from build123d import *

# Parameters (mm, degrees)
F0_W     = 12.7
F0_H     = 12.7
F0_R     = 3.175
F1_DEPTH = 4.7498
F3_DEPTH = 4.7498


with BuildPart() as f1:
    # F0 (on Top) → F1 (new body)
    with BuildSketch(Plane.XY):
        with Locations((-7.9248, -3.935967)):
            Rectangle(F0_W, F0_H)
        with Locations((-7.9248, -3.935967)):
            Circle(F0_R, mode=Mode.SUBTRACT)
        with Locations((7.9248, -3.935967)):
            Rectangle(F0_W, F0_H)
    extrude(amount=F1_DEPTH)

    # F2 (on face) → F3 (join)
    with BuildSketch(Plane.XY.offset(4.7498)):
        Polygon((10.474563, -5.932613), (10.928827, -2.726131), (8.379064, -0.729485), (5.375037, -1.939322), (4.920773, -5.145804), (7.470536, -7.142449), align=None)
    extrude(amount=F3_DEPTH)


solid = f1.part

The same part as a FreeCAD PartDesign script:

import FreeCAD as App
import Part
import Sketcher

V = App.Vector
Q = App.Units.Quantity


def add_polygon(sketch, points):
    """Adds a closed chain of lines whose ends are joined by coincident constraints."""
    first, n = sketch.GeometryCount, len(points)
    for a, b in zip(points, points[1:] + points[:1]):
        sketch.addGeometry(Part.LineSegment(App.Vector(*a, 0), App.Vector(*b, 0)), False)
    for i in range(n):
        sketch.addConstraint(Sketcher.Constraint("Coincident", first + i, 2, first + (i + 1) % n, 1))

doc = App.newDocument("Part")
params = doc.addObject("Spreadsheet::Sheet", "Params")
for row, (alias, value) in enumerate([
    ("sketch1_diameter", "0.25 in"),
    ("sketch1_width", "0.5 in"),
    ("pad1_length", "0.187 in"),
    ("pad2_length", "0.187 in"),
], start=1):
    params.set(f"A{row}", alias)
    params.set(f"B{row}", "=" + value)
    params.setAlias(f"B{row}", alias)

body = doc.addObject("PartDesign::Body", "Body")
body.AllowCompound = True

sketch1 = body.newObject("Sketcher::SketchObject", "Sketch")
sketch1.AttachmentSupport = (doc.getObject("XY_Plane"), [""])
sketch1.MapMode = "FlatFace"
add_polygon(sketch1, [(-14.2748, 2.414033), (-14.2748, -10.285967), (-1.5748, -10.285967), (-1.5748, 2.414033)])
sketch1.addGeometry(Part.Circle(V(-7.9248, -3.935967, 0), V(0, 0, 1), 3.175), False)
add_polygon(sketch1, [(1.5748, 2.414033), (1.5748, -10.285967), (14.2748, -10.285967), (14.2748, 2.414033)])
sketch1.addConstraint(Sketcher.Constraint("Vertical", 0))
sketch1.addConstraint(Sketcher.Constraint("Horizontal", 1))
sketch1.addConstraint(Sketcher.Constraint("Vertical", 2))
sketch1.addConstraint(Sketcher.Constraint("Horizontal", 3))
sketch1.addConstraint(Sketcher.Constraint("Vertical", 5))
sketch1.addConstraint(Sketcher.Constraint("Horizontal", 6))
sketch1.addConstraint(Sketcher.Constraint("Vertical", 7))
sketch1.addConstraint(Sketcher.Constraint("Horizontal", 8))
sketch1.addConstraint(Sketcher.Constraint("Symmetric", 1, 2, 5, 2, -2))
sketch1.addConstraint(Sketcher.Constraint("Symmetric", 3, 2, 7, 2, -2))
sketch1.addConstraint(Sketcher.Constraint("Equal", 8, 0))
sketch1.addConstraint(Sketcher.Constraint("Diameter", 4, Q("0.25 in")))
sketch1.addConstraint(Sketcher.Constraint("DistanceX", 1, 1, 1, 2, Q("0.5 in")))
sketch1.addConstraint(Sketcher.Constraint("DistanceX", 0, 2, 4, 3, Q("0.25 in")))
sketch1.addConstraint(Sketcher.Constraint("DistanceY", 0, 2, 4, 3, Q("0.25 in")))
sketch1.addConstraint(Sketcher.Constraint("DistanceX", 4, 3, -1, 1, Q("0.312 in")))
sketch1.addConstraint(Sketcher.Constraint("DistanceY", 4, 3, -1, 1, 3.935967))
sketch1.setExpression("Constraints[19]", "Params.sketch1_diameter")
sketch1.setExpression("Constraints[20]", "Params.sketch1_width")
pad1 = body.newObject("PartDesign::Pad", "Pad")
pad1.Profile = sketch1
pad1.setExpression("Length", "Params.pad1_length")

sketch2 = body.newObject("Sketcher::SketchObject", "Sketch001")
sketch2.AttachmentSupport = (doc.getObject("XY_Plane"), [""])
sketch2.MapMode = "FlatFace"
sketch2.AttachmentOffset = App.Placement(V(0, 0, 0.187 * 25.4), App.Rotation())
add_polygon(sketch2, [(10.474563, -5.932613), (10.928827, -2.726131), (8.379064, -0.729485), (5.375037, -1.939322), (4.920773, -5.145804), (7.470536, -7.142449)])
sketch2.addConstraint(Sketcher.Constraint("Parallel", 0, 3))
sketch2.addConstraint(Sketcher.Constraint("Parallel", 1, 4))
sketch2.addConstraint(Sketcher.Constraint("Parallel", 2, 5))
sketch2.addConstraint(Sketcher.Constraint("Equal", 0, 1))
sketch2.addConstraint(Sketcher.Constraint("Equal", 1, 2))
sketch2.addConstraint(Sketcher.Constraint("Equal", 2, 3))
sketch2.addConstraint(Sketcher.Constraint("Distance", 0, Q("0.1275 in")))
sketch2.addConstraint(Sketcher.Constraint("DistanceX", 2, 2, 4, 2, Q("0.0825 in")))
sketch2.addConstraint(Sketcher.Constraint("DistanceY", 0, 2, -1, 1, 2.726131))
sketch2.addConstraint(Sketcher.Constraint("DistanceY", 4, 2, -1, 1, 7.142449))
sketch2.addConstraint(Sketcher.Constraint("DistanceX", 2, 2, 0, 2, 5.55379))
sketch2.addConstraint(Sketcher.Constraint("DistanceX", -1, 1, 0, 2, 10.928827))
pad2 = body.newObject("PartDesign::Pad", "Pad001")
pad2.Profile = sketch2
pad2.setExpression("Length", "Params.pad2_length")

doc.recompute()
